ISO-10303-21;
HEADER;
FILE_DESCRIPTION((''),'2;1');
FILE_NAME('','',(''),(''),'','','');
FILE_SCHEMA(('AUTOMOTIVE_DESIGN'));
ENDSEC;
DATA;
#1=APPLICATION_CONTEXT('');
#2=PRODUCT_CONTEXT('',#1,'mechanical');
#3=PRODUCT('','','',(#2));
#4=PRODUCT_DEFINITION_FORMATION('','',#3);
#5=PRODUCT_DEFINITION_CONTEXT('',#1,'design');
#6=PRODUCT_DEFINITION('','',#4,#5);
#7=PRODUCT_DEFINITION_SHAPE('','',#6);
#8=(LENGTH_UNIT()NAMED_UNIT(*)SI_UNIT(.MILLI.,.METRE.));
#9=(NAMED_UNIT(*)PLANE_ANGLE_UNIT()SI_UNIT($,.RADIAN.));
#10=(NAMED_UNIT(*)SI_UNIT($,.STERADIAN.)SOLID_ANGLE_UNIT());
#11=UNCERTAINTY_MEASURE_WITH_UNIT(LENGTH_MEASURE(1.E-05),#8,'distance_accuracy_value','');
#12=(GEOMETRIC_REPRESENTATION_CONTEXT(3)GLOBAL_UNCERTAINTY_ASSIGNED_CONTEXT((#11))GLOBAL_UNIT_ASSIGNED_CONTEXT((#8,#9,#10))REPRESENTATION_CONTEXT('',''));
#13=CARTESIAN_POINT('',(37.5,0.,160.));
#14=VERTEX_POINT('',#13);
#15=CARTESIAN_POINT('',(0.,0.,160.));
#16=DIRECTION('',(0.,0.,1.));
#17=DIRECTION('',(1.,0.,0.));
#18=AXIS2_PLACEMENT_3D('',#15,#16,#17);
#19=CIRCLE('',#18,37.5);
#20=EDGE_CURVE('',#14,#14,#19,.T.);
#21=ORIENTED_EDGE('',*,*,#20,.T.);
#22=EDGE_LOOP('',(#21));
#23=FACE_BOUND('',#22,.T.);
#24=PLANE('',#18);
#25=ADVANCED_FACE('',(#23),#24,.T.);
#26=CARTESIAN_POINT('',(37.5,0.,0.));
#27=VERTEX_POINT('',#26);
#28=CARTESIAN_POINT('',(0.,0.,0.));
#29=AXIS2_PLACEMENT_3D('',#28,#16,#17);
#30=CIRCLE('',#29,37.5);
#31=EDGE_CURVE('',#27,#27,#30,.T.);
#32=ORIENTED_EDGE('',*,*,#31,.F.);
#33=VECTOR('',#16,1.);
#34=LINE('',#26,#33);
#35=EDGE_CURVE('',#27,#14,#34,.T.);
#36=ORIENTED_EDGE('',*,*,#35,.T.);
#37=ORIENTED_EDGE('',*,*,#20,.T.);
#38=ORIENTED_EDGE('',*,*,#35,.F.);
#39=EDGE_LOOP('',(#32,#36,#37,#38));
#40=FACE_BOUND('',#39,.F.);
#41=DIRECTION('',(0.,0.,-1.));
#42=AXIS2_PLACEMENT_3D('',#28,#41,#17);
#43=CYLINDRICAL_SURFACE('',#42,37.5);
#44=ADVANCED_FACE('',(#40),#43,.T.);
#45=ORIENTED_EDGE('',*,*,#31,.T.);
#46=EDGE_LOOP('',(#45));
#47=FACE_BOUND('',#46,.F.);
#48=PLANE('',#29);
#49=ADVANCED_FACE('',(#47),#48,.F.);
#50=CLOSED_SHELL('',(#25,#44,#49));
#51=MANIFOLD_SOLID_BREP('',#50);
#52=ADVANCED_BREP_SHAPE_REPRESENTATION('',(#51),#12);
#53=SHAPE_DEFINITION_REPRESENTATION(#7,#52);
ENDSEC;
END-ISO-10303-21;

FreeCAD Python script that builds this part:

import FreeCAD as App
import Part
import Sketcher
from FreeCAD import Vector

doc = App.newDocument("Part")
params = doc.addObject("Spreadsheet::Sheet", "Params")
for row, (alias, value) in enumerate([
    ("sketch1_diameter", "75 mm"),
    ("pad1_length", "160 mm"),
], start=1):
    params.set(f"A{row}", alias)
    params.set(f"B{row}", "=" + value)
    params.setAlias(f"B{row}", alias)

body = doc.addObject("PartDesign::Body", "Body")

# Sketch on XY plane
sketch1 = body.newObject("Sketcher::SketchObject", "Sketch")
sketch1.AttachmentSupport = (doc.getObject("XY_Plane"), [""])
sketch1.MapMode = "FlatFace"
sketch1.addGeometry(Part.Circle(Vector(0, 0, 0), Vector(0, 0, 1), 38), False)
sketch1.addConstraint([
    Sketcher.Constraint("Coincident", 0, 3, -1, 1),
    Sketcher.Constraint("Diameter", 0, 75.0),
])
sketch1.setExpression("Constraints[1]", "Params.sketch1_diameter")
pad1 = body.newObject("PartDesign::Pad", "Pad")
pad1.Profile = sketch1
pad1.setExpression("Length", "Params.pad1_length")

doc.recompute()
